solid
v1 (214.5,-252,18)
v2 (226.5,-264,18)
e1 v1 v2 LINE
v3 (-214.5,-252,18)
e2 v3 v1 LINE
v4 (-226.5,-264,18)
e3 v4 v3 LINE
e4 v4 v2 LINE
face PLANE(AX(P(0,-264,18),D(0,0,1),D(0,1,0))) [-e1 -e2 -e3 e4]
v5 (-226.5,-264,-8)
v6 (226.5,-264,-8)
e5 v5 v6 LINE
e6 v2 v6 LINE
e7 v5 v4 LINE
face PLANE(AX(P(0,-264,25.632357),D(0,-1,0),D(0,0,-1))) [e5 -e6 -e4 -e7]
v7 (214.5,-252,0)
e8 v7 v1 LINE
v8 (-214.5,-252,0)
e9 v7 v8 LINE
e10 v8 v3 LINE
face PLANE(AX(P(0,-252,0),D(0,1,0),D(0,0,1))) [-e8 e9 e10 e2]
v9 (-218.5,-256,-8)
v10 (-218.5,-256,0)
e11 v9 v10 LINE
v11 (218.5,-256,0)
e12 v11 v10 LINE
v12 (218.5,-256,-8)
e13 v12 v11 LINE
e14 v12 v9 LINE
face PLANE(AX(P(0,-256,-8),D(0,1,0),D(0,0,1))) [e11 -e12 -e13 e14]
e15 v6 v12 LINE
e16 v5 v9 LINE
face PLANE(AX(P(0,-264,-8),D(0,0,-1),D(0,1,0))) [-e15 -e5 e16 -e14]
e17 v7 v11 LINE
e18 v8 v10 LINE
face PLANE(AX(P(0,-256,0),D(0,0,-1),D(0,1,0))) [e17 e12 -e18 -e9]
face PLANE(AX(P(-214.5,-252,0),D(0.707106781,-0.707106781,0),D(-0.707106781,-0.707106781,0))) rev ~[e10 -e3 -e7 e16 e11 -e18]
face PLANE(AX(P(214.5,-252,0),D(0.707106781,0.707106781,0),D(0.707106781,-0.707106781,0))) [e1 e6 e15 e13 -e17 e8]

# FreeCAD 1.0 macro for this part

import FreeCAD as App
import Part
import Sketcher
Q = App.Units.Quantity

doc = App.newDocument("Part")
body = doc.addObject("PartDesign::Body", "Body")

sketch1 = body.newObject("Sketcher::SketchObject", "Sketch")
sketch1.AttachmentSupport = (doc.getObject("YZ_Plane"), [""])
sketch1.MapMode = "FlatFace"
sketch1.addGeometry(Part.LineSegment(App.Vector(-252, 0, 0), App.Vector(-252, 30, 0)), False)
sketch1.addGeometry(Part.LineSegment(App.Vector(-252, 30, 0), App.Vector(-264, 25.6, 0)), False)
sketch1.addGeometry(Part.LineSegment(App.Vector(-264, 25.6, 0), App.Vector(-264, -8, 0)), False)
sketch1.addGeometry(Part.LineSegment(App.Vector(-264, -8, 0), App.Vector(-256, -8, 0)), False)
sketch1.addGeometry(Part.LineSegment(App.Vector(-256, -8, 0), App.Vector(-256, 0, 0)), False)
sketch1.addGeometry(Part.LineSegment(App.Vector(-256, 0, 0), App.Vector(-252, 0, 0)), False)
sketch1.addConstraint(Sketcher.Constraint("Coincident", 0, 2, 1, 1))
sketch1.addConstraint(Sketcher.Constraint("Coincident", 1, 2, 2, 1))
sketch1.addConstraint(Sketcher.Constraint("Coincident", 2, 2, 3, 1))
sketch1.addConstraint(Sketcher.Constraint("Coincident", 3, 2, 4, 1))
sketch1.addConstraint(Sketcher.Constraint("Coincident", 4, 2, 5, 1))
sketch1.addConstraint(Sketcher.Constraint("Coincident", 5, 2, 0, 1))
sketch1.addConstraint(Sketcher.Constraint("Vertical", 0))
sketch1.addConstraint(Sketcher.Constraint("Vertical", 2))
sketch1.addConstraint(Sketcher.Constraint("Horizontal", 3))
sketch1.addConstraint(Sketcher.Constraint("Vertical", 4))
sketch1.addConstraint(Sketcher.Constraint("Horizontal", 5))
sketch1.addConstraint(Sketcher.Constraint("PointOnObject", 4, 2, -1))
sketch1.addConstraint(Sketcher.Constraint("Equal", 3, 4))
sketch1.addConstraint(Sketcher.Constraint("DistanceX", 3, 1, 3, 2, Q("8 mm")))
sketch1.addConstraint(Sketcher.Constraint("DistanceX", 5, 1, 5, 2, Q("4 mm")))
sketch1.addConstraint(Sketcher.Constraint("DistanceY", 0, 1, 0, 2, Q("30 mm")))
sketch1.addConstraint(Sketcher.Constraint("Angle", 1, Q("-159.999999 deg")))
sketch1.addConstraint(Sketcher.Constraint("DistanceX", 0, 2, -1, 1, Q("252 mm")))
pad1 = body.newObject("PartDesign::Pad", "Pad")
pad1.Profile = sketch1
pad1.Length = 700
pad1.Midplane = True

sketch2 = body.newObject("Sketcher::SketchObject", "Sketch001")
sketch2.AttachmentSupport = (doc.getObject("XY_Plane"), [""])
sketch2.MapMode = "FlatFace"
sketch2.addGeometry(Part.LineSegment(App.Vector(-350, -252, 0), App.Vector(-350, -264, 0)), False)
sketch2.addGeometry(Part.LineSegment(App.Vector(-350, -264, 0), App.Vector(-226.5, -264, 0)), False)
sketch2.addGeometry(Part.LineSegment(App.Vector(-226.5, -264, 0), App.Vector(-214.5, -252, 0)), False)
sketch2.addGeometry(Part.LineSegment(App.Vector(-214.5, -252, 0), App.Vector(-350, -252, 0)), False)
sketch2.addGeometry(Part.LineSegment(App.Vector(350, -264, 0), App.Vector(350, -252, 0)), False)
sketch2.addGeometry(Part.LineSegment(App.Vector(350, -252, 0), App.Vector(214.5, -252, 0)), False)
sketch2.addGeometry(Part.LineSegment(App.Vector(214.5, -252, 0), App.Vector(226.5, -264, 0)), False)
sketch2.addGeometry(Part.LineSegment(App.Vector(226.5, -264, 0), App.Vector(350, -264, 0)), False)
sketch2.addConstraint(Sketcher.Constraint("Coincident", 0, 2, 1, 1))
sketch2.addConstraint(Sketcher.Constraint("Coincident", 1, 2, 2, 1))
sketch2.addConstraint(Sketcher.Constraint("Coincident", 2, 2, 3, 1))
sketch2.addConstraint(Sketcher.Constraint("Coincident", 3, 2, 0, 1))
sketch2.addConstraint(Sketcher.Constraint("Coincident", 4, 2, 5, 1))
sketch2.addConstraint(Sketcher.Constraint("Coincident", 5, 2, 6, 1))
sketch2.addConstraint(Sketcher.Constraint("Coincident", 6, 2, 7, 1))
sketch2.addConstraint(Sketcher.Constraint("Coincident", 7, 2, 4, 1))
sketch2.addConstraint(Sketcher.Constraint("Vertical", 0))
sketch2.addConstraint(Sketcher.Constraint("Horizontal", 1))
sketch2.addConstraint(Sketcher.Constraint("Horizontal", 3))
sketch2.addConstraint(Sketcher.Constraint("Vertical", 4))
sketch2.addConstraint(Sketcher.Constraint("Horizontal", 5))
sketch2.addConstraint(Sketcher.Constraint("Horizontal", 7))
sketch2.addConstraint(Sketcher.Constraint("Symmetric", 3, 2, 4, 2, -2))
sketch2.addConstraint(Sketcher.Constraint("Symmetric", 1, 2, 6, 2, -2))
sketch2.addConstraint(Sketcher.Constraint("Perpendicular", 2, 6))
sketch2.addConstraint(Sketcher.Constraint("Equal", 3, 5))
sketch2.addConstraint(Sketcher.Constraint("DistanceY", 0, 2, 0, 1, Q("12 mm")))
sketch2.addConstraint(Sketcher.Constraint("DistanceX", 1, 1, 1, 2, Q("123.5 mm")))
sketch2.addConstraint(Sketcher.Constraint("DistanceX", 0, 2, -1, 1, Q("350 mm")))
sketch2.addConstraint(Sketcher.Constraint("DistanceY", 0, 2, -1, 1, Q("264 mm")))
pocket1 = body.newObject("PartDesign::Pocket", "Pocket")
pocket1.Profile = sketch2
pocket1.Type = "ThroughAll"
pocket1.Midplane = True

sketch3 = body.newObject("Sketcher::SketchObject", "Sketch002")
sketch3.AttachmentSupport = (doc.getObject("YZ_Plane"), [""])
sketch3.MapMode = "FlatFace"
sketch3.addGeometry(Part.LineSegment(App.Vector(-264, 30, 0), App.Vector(-264, 18, 0)), False)
sketch3.addGeometry(Part.LineSegment(App.Vector(-264, 18, 0), App.Vector(-252, 18, 0)), False)
sketch3.addGeometry(Part.LineSegment(App.Vector(-252, 18, 0), App.Vector(-252, 30, 0)), False)
sketch3.addGeometry(Part.LineSegment(App.Vector(-252, 30, 0), App.Vector(-264, 30, 0)), False)
sketch3.addConstraint(Sketcher.Constraint("Coincident", 0, 2, 1, 1))
sketch3.addConstraint(Sketcher.Constraint("Coincident", 1, 2, 2, 1))
sketch3.addConstraint(Sketcher.Constraint("Coincident", 2, 2, 3, 1))
sketch3.addConstraint(Sketcher.Constraint("Coincident", 3, 2, 0, 1))
sketch3.addConstraint(Sketcher.Constraint("Vertical", 0))
sketch3.addConstraint(Sketcher.Constraint("Horizontal", 1))
sketch3.addConstraint(Sketcher.Constraint("Vertical", 2))
sketch3.addConstraint(Sketcher.Constraint("Horizontal", 3))
sketch3.addConstraint(Sketcher.Constraint("Equal", 3, 0))
sketch3.addConstraint(Sketcher.Constraint("DistanceX", 1, 1, 1, 2, Q("12 mm")))
sketch3.addConstraint(Sketcher.Constraint("DistanceX", 0, 2, -1, 1, Q("264 mm")))
sketch3.addConstraint(Sketcher.Constraint("DistanceY", -1, 1, 0, 2, Q("18 mm")))
pocket2 = body.newObject("PartDesign::Pocket", "Pocket001")
pocket2.Profile = sketch3
pocket2.Type = "ThroughAll"
pocket2.Midplane = True

doc.recompute()
